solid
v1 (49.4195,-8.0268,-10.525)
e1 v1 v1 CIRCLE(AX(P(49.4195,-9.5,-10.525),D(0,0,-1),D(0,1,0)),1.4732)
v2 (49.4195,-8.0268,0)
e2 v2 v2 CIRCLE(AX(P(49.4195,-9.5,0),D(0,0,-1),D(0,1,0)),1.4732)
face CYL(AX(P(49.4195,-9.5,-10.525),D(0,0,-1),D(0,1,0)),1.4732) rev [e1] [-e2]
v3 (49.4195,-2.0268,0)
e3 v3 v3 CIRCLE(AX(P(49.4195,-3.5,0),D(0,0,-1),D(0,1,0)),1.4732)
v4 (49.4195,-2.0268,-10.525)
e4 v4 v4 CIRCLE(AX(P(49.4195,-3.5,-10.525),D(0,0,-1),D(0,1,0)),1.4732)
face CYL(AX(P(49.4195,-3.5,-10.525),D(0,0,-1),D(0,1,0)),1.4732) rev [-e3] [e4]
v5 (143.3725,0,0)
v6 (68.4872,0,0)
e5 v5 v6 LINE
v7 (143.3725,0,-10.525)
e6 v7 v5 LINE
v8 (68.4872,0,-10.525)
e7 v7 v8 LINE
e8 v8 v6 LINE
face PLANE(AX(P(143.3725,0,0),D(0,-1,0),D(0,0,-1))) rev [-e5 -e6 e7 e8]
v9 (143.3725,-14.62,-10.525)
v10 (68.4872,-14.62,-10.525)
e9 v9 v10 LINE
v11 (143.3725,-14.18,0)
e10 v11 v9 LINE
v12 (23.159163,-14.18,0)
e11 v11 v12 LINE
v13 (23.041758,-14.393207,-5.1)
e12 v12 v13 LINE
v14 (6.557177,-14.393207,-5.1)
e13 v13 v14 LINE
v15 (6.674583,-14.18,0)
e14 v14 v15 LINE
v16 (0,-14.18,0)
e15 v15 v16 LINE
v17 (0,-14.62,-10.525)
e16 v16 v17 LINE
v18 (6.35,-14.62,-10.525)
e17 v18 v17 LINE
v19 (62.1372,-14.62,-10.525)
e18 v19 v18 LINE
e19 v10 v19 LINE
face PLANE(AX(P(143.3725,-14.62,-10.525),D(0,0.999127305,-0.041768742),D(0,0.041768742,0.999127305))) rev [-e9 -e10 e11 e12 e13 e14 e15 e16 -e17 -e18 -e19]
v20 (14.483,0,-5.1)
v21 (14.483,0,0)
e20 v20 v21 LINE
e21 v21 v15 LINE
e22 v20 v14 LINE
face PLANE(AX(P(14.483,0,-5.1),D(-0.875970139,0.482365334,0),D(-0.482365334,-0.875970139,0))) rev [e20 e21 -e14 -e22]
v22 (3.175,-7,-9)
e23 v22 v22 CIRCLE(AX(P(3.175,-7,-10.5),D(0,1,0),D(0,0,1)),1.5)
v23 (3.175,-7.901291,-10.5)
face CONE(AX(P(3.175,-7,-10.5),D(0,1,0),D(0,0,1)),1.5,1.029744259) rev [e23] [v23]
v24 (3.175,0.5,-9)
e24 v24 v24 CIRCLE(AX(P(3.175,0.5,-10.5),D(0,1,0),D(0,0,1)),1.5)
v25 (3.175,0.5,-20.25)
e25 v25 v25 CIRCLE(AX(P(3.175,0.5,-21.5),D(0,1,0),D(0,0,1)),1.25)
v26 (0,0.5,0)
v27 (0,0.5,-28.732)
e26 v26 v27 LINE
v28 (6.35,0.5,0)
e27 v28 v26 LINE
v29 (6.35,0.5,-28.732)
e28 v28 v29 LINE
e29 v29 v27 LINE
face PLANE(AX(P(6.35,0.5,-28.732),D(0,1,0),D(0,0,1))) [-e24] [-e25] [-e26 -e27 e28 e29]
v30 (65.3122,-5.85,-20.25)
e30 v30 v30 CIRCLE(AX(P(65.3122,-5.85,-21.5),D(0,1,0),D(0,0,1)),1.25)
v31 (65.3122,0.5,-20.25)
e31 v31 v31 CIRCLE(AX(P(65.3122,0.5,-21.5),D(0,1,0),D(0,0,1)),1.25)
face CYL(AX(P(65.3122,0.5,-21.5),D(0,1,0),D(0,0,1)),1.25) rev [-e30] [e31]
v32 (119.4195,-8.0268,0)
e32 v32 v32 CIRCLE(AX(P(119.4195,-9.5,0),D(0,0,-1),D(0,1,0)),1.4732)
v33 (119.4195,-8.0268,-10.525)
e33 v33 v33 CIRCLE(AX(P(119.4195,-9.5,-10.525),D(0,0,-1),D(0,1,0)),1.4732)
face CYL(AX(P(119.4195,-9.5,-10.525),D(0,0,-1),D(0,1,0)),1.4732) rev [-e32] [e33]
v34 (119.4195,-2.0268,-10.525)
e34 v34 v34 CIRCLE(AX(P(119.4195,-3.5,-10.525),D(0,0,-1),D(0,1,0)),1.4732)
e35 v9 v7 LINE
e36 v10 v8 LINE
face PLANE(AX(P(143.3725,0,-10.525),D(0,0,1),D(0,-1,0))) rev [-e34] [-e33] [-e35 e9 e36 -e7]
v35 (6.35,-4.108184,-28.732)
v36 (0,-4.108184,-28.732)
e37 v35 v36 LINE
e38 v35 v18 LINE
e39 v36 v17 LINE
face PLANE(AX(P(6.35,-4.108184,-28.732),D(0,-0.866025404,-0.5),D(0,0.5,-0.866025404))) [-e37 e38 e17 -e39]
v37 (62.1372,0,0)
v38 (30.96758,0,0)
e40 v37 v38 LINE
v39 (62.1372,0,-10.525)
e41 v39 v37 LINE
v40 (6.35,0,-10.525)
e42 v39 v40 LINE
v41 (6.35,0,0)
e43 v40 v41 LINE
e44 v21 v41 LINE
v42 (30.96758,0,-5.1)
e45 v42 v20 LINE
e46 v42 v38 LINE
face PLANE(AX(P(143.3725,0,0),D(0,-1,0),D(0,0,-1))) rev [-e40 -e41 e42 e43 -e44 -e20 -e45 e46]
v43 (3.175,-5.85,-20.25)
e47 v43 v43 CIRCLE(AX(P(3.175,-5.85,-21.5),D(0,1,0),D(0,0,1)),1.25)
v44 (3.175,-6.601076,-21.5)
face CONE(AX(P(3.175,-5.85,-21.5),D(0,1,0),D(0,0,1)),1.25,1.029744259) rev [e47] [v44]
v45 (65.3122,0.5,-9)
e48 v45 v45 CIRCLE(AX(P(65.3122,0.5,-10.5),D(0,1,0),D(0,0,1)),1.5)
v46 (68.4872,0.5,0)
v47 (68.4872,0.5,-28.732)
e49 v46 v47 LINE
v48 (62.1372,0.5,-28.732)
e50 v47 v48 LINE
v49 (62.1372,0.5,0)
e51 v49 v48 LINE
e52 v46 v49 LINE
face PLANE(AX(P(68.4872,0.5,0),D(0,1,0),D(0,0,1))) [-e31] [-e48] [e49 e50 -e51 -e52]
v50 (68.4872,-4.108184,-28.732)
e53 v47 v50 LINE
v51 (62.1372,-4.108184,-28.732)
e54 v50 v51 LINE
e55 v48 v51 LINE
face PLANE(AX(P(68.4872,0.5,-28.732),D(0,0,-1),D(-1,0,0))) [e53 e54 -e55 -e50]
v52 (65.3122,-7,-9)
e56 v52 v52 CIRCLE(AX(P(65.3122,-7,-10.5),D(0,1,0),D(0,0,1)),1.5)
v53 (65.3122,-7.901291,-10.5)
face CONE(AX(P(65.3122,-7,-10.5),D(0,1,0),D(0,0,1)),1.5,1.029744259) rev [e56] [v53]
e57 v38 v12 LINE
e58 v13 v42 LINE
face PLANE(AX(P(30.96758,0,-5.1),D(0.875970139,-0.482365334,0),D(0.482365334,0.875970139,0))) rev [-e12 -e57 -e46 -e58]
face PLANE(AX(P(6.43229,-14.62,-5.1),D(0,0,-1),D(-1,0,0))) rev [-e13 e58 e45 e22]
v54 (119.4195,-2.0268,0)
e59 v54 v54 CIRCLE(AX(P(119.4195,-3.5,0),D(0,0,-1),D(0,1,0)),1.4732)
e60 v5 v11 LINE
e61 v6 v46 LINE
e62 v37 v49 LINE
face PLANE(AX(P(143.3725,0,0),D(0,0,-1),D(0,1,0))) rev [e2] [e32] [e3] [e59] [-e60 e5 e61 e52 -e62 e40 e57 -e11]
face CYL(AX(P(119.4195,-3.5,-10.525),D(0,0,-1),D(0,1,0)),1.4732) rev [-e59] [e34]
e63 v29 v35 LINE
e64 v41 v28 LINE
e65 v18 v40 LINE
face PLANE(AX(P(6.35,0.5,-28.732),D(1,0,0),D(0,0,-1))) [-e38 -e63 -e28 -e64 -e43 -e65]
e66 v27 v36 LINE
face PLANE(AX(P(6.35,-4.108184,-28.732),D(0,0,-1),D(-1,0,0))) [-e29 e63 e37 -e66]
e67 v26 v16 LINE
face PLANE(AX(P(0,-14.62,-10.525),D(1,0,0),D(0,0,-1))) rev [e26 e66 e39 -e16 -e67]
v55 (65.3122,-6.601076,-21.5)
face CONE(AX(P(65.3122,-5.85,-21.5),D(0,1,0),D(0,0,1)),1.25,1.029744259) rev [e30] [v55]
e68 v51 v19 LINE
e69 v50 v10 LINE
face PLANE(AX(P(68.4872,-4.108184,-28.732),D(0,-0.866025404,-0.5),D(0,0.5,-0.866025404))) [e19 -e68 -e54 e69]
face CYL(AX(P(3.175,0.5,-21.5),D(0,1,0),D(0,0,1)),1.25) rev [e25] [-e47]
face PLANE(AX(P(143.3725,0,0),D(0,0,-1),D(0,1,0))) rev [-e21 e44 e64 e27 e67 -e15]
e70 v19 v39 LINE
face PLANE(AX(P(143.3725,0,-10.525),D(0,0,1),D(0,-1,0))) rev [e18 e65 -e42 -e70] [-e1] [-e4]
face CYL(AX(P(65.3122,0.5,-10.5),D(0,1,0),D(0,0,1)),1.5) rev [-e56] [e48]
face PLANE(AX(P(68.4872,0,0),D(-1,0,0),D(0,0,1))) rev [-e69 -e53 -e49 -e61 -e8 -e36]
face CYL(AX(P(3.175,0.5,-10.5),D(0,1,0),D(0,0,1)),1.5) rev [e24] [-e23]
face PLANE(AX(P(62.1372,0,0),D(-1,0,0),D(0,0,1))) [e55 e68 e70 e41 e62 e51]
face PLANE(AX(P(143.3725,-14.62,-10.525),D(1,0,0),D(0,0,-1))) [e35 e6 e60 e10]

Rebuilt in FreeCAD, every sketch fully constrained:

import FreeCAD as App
import Part
import Sketcher
from FreeCAD import Vector
Q = App.Units.Quantity

doc = App.newDocument("Part")
body = doc.addObject("PartDesign::Body", "Body")

sketch1 = doc.addObject("Sketcher::SketchObject", "Sketch")
body.addObject(sketch1)
sketch1.AttachmentSupport = (doc.YZ_Plane, [""])
sketch1.MapMode = "FlatFace"
sketch1.addGeometry(Part.LineSegment(Vector(0, -11, 0), Vector(0, 0, 0)), False)
sketch1.addGeometry(Part.LineSegment(Vector(0, 0, 0), Vector(-14, 0, 0)), False)
sketch1.addGeometry(Part.LineSegment(Vector(-14, 0, 0), Vector(-15, -11, 0)), False)
sketch1.addGeometry(Part.LineSegment(Vector(-15, -11, 0), Vector(0, -11, 0)), False)
sketch1.addConstraint(Sketcher.Constraint("Coincident", 0, 2, 1, 1))
sketch1.addConstraint(Sketcher.Constraint("Coincident", 1, 2, 2, 1))
sketch1.addConstraint(Sketcher.Constraint("Coincident", 2, 2, 3, 1))
sketch1.addConstraint(Sketcher.Constraint("Coincident", 3, 2, 0, 1))
sketch1.addConstraint(Sketcher.Constraint("Vertical", 0))
sketch1.addConstraint(Sketcher.Constraint("Horizontal", 1))
sketch1.addConstraint(Sketcher.Constraint("Horizontal", 3))
sketch1.addConstraint(Sketcher.Constraint("Coincident", 0, 2, -1, 1))
sketch1.addConstraint(Sketcher.Constraint("DistanceX", 1, 2, 1, 1, Q("14.18 mm")))
sketch1.addConstraint(Sketcher.Constraint("DistanceX", 3, 1, 3, 2, Q("14.62 mm")))
sketch1.addConstraint(Sketcher.Constraint("DistanceY", 0, 1, 0, 2, Q("10.525 mm")))
pad1 = doc.addObject("PartDesign::Pad", "Pad")
body.addObject(pad1)
pad1.Profile = sketch1
pad1.Length = 143.3725

sketch2 = doc.addObject("Sketcher::SketchObject", "Sketch001")
body.addObject(sketch2)
sketch2.AttachmentSupport = (doc.YZ_Plane, [""])
sketch2.MapMode = "FlatFace"
sketch2.addGeometry(Part.LineSegment(Vector(0.5, 0, 0), Vector(0.5, -28.7, 0)), False)
sketch2.addGeometry(Part.LineSegment(Vector(0.5, -28.7, 0), Vector(-4.1, -28.7, 0)), False)
sketch2.addGeometry(Part.LineSegment(Vector(-4.1, -28.7, 0), Vector(-14.6, -10.5, 0)), False)
sketch2.addGeometry(Part.LineSegment(Vector(-14.6, -10.5, 0), Vector(-14.2, 0, 0)), False)
sketch2.addGeometry(Part.LineSegment(Vector(-14.2, 0, 0), Vector(0.5, 0, 0)), False)
sketch2.addConstraint(Sketcher.Constraint("Coincident", 0, 2, 1, 1))
sketch2.addConstraint(Sketcher.Constraint("Coincident", 1, 2, 2, 1))
sketch2.addConstraint(Sketcher.Constraint("Coincident", 2, 2, 3, 1))
sketch2.addConstraint(Sketcher.Constraint("Coincident", 3, 2, 4, 1))
sketch2.addConstraint(Sketcher.Constraint("Coincident", 4, 2, 0, 1))
sketch2.addConstraint(Sketcher.Constraint("Vertical", 0))
sketch2.addConstraint(Sketcher.Constraint("Horizontal", 1))
sketch2.addConstraint(Sketcher.Constraint("Horizontal", 4))
sketch2.addConstraint(Sketcher.Constraint("PointOnObject", 3, 2, -1))
sketch2.addConstraint(Sketcher.Constraint("Angle", 2, Q("120 deg")))
sketch2.addConstraint(Sketcher.Constraint("DistanceX", 4, 1, 4, 2, Q("14.68 mm")))
sketch2.addConstraint(Sketcher.Constraint("DistanceX", -1, 1, 0, 2, Q("0.5 mm")))
sketch2.addConstraint(Sketcher.Constraint("DistanceY", 0, 2, 0, 1, Q("28.732 mm")))
sketch2.addConstraint(Sketcher.Constraint("DistanceX", 2, 2, -1, 1, Q("14.62 mm")))
sketch2.addConstraint(Sketcher.Constraint("DistanceY", 2, 2, -1, 1, Q("10.525 mm")))
pad2 = doc.addObject("PartDesign::Pad", "Pad001")
body.addObject(pad2)
pad2.Profile = sketch2
pad2.Length = 6.35

sketch3 = doc.addObject("Sketcher::SketchObject", "Sketch002")
body.addObject(sketch3)
sketch3.AttachmentSupport = (doc.YZ_Plane, [""])
sketch3.MapMode = "FlatFace"
sketch3.AttachmentOffset = App.Placement(Vector(0, 0, 62.1372), App.Rotation())
sketch3.addGeometry(Part.LineSegment(Vector(-14.6, -10.5, 0), Vector(0, -10.5, 0)), False)
sketch3.addGeometry(Part.LineSegment(Vector(0, -10.5, 0), Vector(0, 0, 0)), False)
sketch3.addGeometry(Part.LineSegment(Vector(0, 0, 0), Vector(0.5, 0, 0)), False)
sketch3.addGeometry(Part.LineSegment(Vector(0.5, 0, 0), Vector(0.5, -28.7, 0)), False)
sketch3.addGeometry(Part.LineSegment(Vector(0.5, -28.7, 0), Vector(-4.1, -28.7, 0)), False)
sketch3.addGeometry(Part.LineSegment(Vector(-4.1, -28.7, 0), Vector(-14.6, -10.5, 0)), False)
sketch3.addConstraint(Sketcher.Constraint("Coincident", 0, 2, 1, 1))
sketch3.addConstraint(Sketcher.Constraint("Coincident", 1, 2, 2, 1))
sketch3.addConstraint(Sketcher.Constraint("Coincident", 2, 2, 3, 1))
sketch3.addConstraint(Sketcher.Constraint("Coincident", 3, 2, 4, 1))
sketch3.addConstraint(Sketcher.Constraint("Coincident", 4, 2, 5, 1))
sketch3.addConstraint(Sketcher.Constraint("Coincident", 5, 2, 0, 1))
sketch3.addConstraint(Sketcher.Constraint("Horizontal", 0))
sketch3.addConstraint(Sketcher.Constraint("Vertical", 1))
sketch3.addConstraint(Sketcher.Constraint("Horizontal", 2))
sketch3.addConstraint(Sketcher.Constraint("Vertical", 3))
sketch3.addConstraint(Sketcher.Constraint("Horizontal", 4))
sketch3.addConstraint(Sketcher.Constraint("Coincident", 1, 2, -1, 1))
sketch3.addConstraint(Sketcher.Constraint("Angle", 5, Q("120 deg")))
sketch3.addConstraint(Sketcher.Constraint("DistanceX", 2, 1, 2, 2, Q("0.5 mm")))
sketch3.addConstraint(Sketcher.Constraint("DistanceX", 0, 1, 0, 2, Q("14.62 mm")))
sketch3.addConstraint(Sketcher.Constraint("DistanceY", 1, 1, 1, 2, Q("10.525 mm")))
sketch3.addConstraint(Sketcher.Constraint("DistanceY", 3, 2, 3, 1, Q("28.732 mm")))
pad3 = doc.addObject("PartDesign::Pad", "Pad002")
body.addObject(pad3)
pad3.Profile = sketch3
pad3.Length = 6.35

sketch4 = doc.addObject("Sketcher::SketchObject", "Sketch003")
body.addObject(sketch4)
sketch4.AttachmentSupport = (doc.XZ_Plane, [""])
sketch4.MapMode = "FlatFace"
sketch4.AttachmentOffset = App.Placement(Vector(0, 0, -0.5), App.Rotation())
sketch4.addGeometry(Part.Circle(Vector(65.3, -10.5, 0), Vector(0, 0, 1), 1.5), False)
sketch4.addGeometry(Part.Circle(Vector(3.2, -10.5, 0), Vector(0, 0, 1), 1.5), False)
sketch4.addConstraint(Sketcher.Constraint("Equal", 0, 1))
sketch4.addConstraint(Sketcher.Constraint("Horizontal", 0, 3, 1, 3))
sketch4.addConstraint(Sketcher.Constraint("Diameter", 0, Q("3 mm")))
sketch4.addConstraint(Sketcher.Constraint("DistanceY", 0, 3, -1, 1, Q("10.5 mm")))
sketch4.addConstraint(Sketcher.Constraint("DistanceX", -1, 1, 1, 3, Q("3.175 mm")))
sketch4.addConstraint(Sketcher.Constraint("DistanceX", -1, 1, 0, 3, Q("65.3122 mm")))
doc.recompute()
hole = doc.addObject("PartDesign::Hole", "Hole")
body.addObject(hole)
hole.Profile = sketch4
hole.ThreadType = "None"
hole.Diameter = 3
hole.DepthType = "Dimension"
hole.Depth = 7.5
hole.DrillPoint = "Angled"
hole.DrillPointAngle = 118
hole.Reversed = True

sketch5 = doc.addObject("Sketcher::SketchObject", "Sketch004")
body.addObject(sketch5)
sketch5.AttachmentSupport = (doc.XZ_Plane, [""])
sketch5.MapMode = "FlatFace"
sketch5.AttachmentOffset = App.Placement(Vector(0, 0, -0.5), App.Rotation())
sketch5.addGeometry(Part.Circle(Vector(3.2, -21.5, 0), Vector(0, 0, 1), 1.2), False)
sketch5.addGeometry(Part.Circle(Vector(65.3, -21.5, 0), Vector(0, 0, 1), 1.2), False)
sketch5.addConstraint(Sketcher.Constraint("Equal", 0, 1))
sketch5.addConstraint(Sketcher.Constraint("Horizontal", 0, 3, 1, 3))
sketch5.addConstraint(Sketcher.Constraint("Diameter", 0, Q("2.5 mm")))
sketch5.addConstraint(Sketcher.Constraint("DistanceY", 0, 3, -1, 1, Q("21.5 mm")))
sketch5.addConstraint(Sketcher.Constraint("DistanceX", -1, 1, 0, 3, Q("3.175 mm")))
sketch5.addConstraint(Sketcher.Constraint("DistanceX", -1, 1, 1, 3, Q("65.3122 mm")))
doc.recompute()
hole2 = doc.addObject("PartDesign::Hole", "Hole001")
body.addObject(hole2)
hole2.Profile = sketch5
hole2.ThreadType = "None"
hole2.Diameter = 2.5
hole2.DepthType = "Dimension"
hole2.Depth = 6.35
hole2.DrillPoint = "Angled"
hole2.DrillPointAngle = 118
hole2.Reversed = True

sketch6 = doc.addObject("Sketcher::SketchObject", "Sketch005")
body.addObject(sketch6)
sketch6.AttachmentSupport = (doc.XY_Plane, [""])
sketch6.MapMode = "FlatFace"
sketch6.addGeometry(Part.LineSegment(Vector(31, 0, 0), Vector(14, 0, 0)), False)
sketch6.addGeometry(Part.LineSegment(Vector(14, 0, 0), Vector(6, -15, 0)), False)
sketch6.addGeometry(Part.LineSegment(Vector(6, -15, 0), Vector(23, -15, 0)), False)
sketch6.addGeometry(Part.LineSegment(Vector(23, -15, 0), Vector(31, 0, 0)), False)
sketch6.addConstraint(Sketcher.Constraint("Coincident", 0, 2, 1, 1))
sketch6.addConstraint(Sketcher.Constraint("Coincident", 1, 2, 2, 1))
sketch6.addConstraint(Sketcher.Constraint("Coincident", 2, 2, 3, 1))
sketch6.addConstraint(Sketcher.Constraint("Coincident", 3, 2, 0, 1))
sketch6.addConstraint(Sketcher.Constraint("Horizontal", 0))
sketch6.addConstraint(Sketcher.Constraint("Horizontal", 2))
sketch6.addConstraint(Sketcher.Constraint("PointOnObject", 0, 2, -1))
sketch6.addConstraint(Sketcher.Constraint("Parallel", 1, 3))
sketch6.addConstraint(Sketcher.Constraint("Angle", 1, Q("-118.84 deg")))
sketch6.addConstraint(Sketcher.Constraint("DistanceY", 1, 2, -1, 1, Q("14.62 mm")))
sketch6.addConstraint(Sketcher.Constraint("DistanceX", -1, 1, 0, 2, Q("14.483 mm")))
sketch6.addConstraint(Sketcher.Constraint("DistanceX", 0, 2, 0, 1, Q("16.48458 mm")))
pocket1 = doc.addObject("PartDesign::Pocket", "Pocket")
body.addObject(pocket1)
pocket1.Profile = sketch6
pocket1.Length = 5.1

sketch7 = doc.addObject("Sketcher::SketchObject", "Sketch006")
body.addObject(sketch7)
sketch7.AttachmentSupport = (doc.XY_Plane, [""])
sketch7.MapMode = "FlatFace"
sketch7.AttachmentOffset = App.Placement(Vector(0, 0, -10.525), App.Rotation())
sketch7.addGeometry(Part.Circle(Vector(119.4, -3.5, 0), Vector(0, 0, 1), 1.5), False)
sketch7.addGeometry(Part.Circle(Vector(119.4, -9.5, 0), Vector(0, 0, 1), 1.5), False)
sketch7.addGeometry(Part.Circle(Vector(49.4, -3.5, 0), Vector(0, 0, 1), 1.5), False)
sketch7.addGeometry(Part.Circle(Vector(49.4, -9.5, 0), Vector(0, 0, 1), 1.5), False)
sketch7.addConstraint(Sketcher.Constraint("Equal", 0, 1))
sketch7.addConstraint(Sketcher.Constraint("Equal", 1, 2))
sketch7.addConstraint(Sketcher.Constraint("Equal", 2, 3))
sketch7.addConstraint(Sketcher.Constraint("Horizontal", 0, 3, 2, 3))
sketch7.addConstraint(Sketcher.Constraint("Horizontal", 1, 3, 3, 3))
sketch7.addConstraint(Sketcher.Constraint("Vertical", 0, 3, 1, 3))
sketch7.addConstraint(Sketcher.Constraint("Vertical", 2, 3, 3, 3))
sketch7.addConstraint(Sketcher.Constraint("DistanceY", 1, 3, 0, 3, Q("6 mm")))
sketch7.addConstraint(Sketcher.Constraint("DistanceX", 2, 3, 0, 3, Q("70 mm")))
sketch7.addConstraint(Sketcher.Constraint("Diameter", 0, Q("2.9464 mm")))
sketch7.addConstraint(Sketcher.Constraint("DistanceY", 0, 3, -1, 1, Q("3.5 mm")))
sketch7.addConstraint(Sketcher.Constraint("DistanceX", -1, 1, 0, 3, Q("119.4195 mm")))
doc.recompute()
hole3 = doc.addObject("PartDesign::Hole", "Hole002")
body.addObject(hole3)
hole3.Profile = sketch7
hole3.ThreadType = "None"
hole3.Diameter = 2.9464
hole3.DepthType = "ThroughAll"
hole3.Reversed = True

doc.recompute()
